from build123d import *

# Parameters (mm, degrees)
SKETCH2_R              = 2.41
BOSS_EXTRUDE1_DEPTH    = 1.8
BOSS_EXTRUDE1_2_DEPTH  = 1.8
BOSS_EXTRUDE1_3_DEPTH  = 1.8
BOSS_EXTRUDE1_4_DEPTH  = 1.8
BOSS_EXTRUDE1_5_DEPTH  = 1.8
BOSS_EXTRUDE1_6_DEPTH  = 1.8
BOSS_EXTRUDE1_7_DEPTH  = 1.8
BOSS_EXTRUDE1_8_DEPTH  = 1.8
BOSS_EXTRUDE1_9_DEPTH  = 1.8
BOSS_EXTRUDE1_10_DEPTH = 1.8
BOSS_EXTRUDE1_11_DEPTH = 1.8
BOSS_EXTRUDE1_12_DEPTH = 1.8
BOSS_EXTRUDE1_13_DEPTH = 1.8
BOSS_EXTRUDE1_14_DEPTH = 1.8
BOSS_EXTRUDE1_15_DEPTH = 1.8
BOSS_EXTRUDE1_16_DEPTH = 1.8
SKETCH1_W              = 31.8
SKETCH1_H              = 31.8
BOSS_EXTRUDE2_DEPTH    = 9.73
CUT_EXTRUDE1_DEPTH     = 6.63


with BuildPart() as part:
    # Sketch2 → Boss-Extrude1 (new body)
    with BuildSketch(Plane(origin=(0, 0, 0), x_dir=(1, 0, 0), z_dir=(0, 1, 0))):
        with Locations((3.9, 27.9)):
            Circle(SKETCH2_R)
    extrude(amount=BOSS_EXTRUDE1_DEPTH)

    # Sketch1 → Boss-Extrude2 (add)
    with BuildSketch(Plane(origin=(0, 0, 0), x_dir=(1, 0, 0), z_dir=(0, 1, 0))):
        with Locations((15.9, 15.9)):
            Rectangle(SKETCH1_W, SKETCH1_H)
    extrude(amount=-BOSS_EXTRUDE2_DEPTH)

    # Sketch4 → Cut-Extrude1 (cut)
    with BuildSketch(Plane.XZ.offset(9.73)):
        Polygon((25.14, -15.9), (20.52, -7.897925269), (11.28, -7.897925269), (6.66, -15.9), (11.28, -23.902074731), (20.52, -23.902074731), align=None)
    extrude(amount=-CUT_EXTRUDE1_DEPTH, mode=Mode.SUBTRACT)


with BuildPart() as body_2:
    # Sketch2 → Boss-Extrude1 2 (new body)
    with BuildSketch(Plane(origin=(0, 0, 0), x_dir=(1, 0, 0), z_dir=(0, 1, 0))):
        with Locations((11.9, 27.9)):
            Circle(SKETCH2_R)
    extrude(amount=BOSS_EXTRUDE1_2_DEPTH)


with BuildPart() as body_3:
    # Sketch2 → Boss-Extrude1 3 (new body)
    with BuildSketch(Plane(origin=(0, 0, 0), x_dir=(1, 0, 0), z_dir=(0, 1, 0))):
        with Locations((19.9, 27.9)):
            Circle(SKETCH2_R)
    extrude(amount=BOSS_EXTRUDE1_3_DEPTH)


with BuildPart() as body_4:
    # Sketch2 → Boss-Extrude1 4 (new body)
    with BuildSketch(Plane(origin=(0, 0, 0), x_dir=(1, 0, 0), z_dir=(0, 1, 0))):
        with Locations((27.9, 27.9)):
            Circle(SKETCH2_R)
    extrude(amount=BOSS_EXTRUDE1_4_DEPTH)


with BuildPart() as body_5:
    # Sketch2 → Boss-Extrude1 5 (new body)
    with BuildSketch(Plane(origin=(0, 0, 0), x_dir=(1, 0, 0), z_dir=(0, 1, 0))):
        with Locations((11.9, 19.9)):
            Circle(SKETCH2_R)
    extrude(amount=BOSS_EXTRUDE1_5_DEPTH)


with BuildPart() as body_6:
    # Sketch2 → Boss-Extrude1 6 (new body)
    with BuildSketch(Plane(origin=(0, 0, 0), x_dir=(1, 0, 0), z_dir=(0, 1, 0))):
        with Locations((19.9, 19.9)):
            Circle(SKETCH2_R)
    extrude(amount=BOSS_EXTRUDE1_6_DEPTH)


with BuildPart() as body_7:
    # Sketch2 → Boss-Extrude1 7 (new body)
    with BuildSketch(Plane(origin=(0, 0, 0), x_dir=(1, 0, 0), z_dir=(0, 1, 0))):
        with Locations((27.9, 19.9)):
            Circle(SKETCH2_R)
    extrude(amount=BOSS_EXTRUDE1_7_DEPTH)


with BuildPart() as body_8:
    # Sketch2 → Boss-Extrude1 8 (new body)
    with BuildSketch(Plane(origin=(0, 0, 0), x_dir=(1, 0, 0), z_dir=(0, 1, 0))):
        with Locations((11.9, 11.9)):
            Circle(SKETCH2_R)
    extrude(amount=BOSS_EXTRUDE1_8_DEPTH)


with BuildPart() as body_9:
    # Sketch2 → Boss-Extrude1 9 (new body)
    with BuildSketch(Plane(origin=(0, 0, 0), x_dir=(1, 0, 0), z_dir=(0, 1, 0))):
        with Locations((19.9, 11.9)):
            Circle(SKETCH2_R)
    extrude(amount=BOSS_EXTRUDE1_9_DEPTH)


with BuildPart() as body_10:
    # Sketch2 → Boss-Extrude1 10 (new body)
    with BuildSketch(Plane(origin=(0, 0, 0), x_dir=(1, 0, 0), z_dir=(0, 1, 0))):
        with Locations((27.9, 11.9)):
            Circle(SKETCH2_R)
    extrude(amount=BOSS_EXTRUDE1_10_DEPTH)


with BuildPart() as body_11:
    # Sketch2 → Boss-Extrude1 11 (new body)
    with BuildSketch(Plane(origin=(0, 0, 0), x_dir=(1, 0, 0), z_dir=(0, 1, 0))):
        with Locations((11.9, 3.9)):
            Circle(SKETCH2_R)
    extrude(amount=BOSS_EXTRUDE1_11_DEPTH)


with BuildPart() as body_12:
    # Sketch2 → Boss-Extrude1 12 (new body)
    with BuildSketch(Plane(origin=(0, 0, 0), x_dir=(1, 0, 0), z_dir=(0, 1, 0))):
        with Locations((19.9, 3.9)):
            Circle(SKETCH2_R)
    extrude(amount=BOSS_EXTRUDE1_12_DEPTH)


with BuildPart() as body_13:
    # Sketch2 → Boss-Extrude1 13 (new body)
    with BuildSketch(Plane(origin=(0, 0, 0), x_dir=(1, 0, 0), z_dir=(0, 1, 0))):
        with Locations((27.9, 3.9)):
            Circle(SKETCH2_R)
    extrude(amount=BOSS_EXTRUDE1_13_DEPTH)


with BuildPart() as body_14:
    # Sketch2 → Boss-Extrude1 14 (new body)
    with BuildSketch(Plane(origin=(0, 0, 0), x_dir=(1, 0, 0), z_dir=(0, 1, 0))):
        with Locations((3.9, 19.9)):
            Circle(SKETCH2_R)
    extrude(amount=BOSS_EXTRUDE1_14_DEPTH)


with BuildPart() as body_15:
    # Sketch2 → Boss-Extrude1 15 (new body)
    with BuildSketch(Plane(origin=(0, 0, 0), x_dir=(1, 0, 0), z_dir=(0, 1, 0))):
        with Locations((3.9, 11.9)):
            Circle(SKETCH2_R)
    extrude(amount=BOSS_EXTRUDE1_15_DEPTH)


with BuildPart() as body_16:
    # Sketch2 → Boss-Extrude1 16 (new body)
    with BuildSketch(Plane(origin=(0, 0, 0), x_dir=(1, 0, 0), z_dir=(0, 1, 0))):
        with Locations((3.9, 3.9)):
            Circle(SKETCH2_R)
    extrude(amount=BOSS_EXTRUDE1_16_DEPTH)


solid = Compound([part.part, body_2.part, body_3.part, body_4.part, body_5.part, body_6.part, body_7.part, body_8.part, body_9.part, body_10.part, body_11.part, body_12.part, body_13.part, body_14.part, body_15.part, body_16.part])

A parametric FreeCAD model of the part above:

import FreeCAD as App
import Part
import Sketcher
Q = App.Units.Quantity


def add_polygon(sketch, points):
    """Adds a closed chain of lines whose ends are joined by coincident constraints."""
    first, n = sketch.GeometryCount, len(points)
    for a, b in zip(points, points[1:] + points[:1]):
        sketch.addGeometry(Part.LineSegment(App.Vector(*a, 0), App.Vector(*b, 0)), False)
    for i in range(n):
        sketch.addConstraint(Sketcher.Constraint("Coincident", first + i, 2, first + (i + 1) % n, 1))

doc = App.newDocument("Part")
body = doc.addObject("PartDesign::Body", "Body")

# Sketch on XZ plane
sketch1 = body.newObject("Sketcher::SketchObject", "Sketch")
sketch1.AttachmentSupport = (doc.getObject("XZ_Plane"), [""])
sketch1.MapMode = "FlatFace"
sketch1.addGeometry(Part.Circle(App.Vector(3.9, -27.9, 0), App.Vector(0, 0, 1), 2.4), False)
sketch1.addConstraint([
    Sketcher.Constraint("Diameter", 0, 4.82),
    Sketcher.Constraint("DistanceX", -1, 1, 0, 3, 3.9),
    Sketcher.Constraint("DistanceY", 0, 3, -1, 1, 27.9),
])
pad1 = body.newObject("PartDesign::Pad", "Pad")
pad1.Profile = sketch1
pad1.Length = 1.8
pad1.Reversed = True

# Sketch on XZ plane
sketch2 = body.newObject("Sketcher::SketchObject", "Sketch001")
sketch2.AttachmentSupport = (doc.getObject("XZ_Plane"), [""])
sketch2.MapMode = "FlatFace"
add_polygon(sketch2, [(0, -32), (0, 0), (32, 0), (32, -32)])  # lines 0-3
sketch2.addConstraint([
    Sketcher.Constraint("Vertical", 0),
    Sketcher.Constraint("Horizontal", 1),
    Sketcher.Constraint("Vertical", 2),
    Sketcher.Constraint("Horizontal", 3),
    Sketcher.Constraint("Coincident", 0, 2, -1, 1),
    Sketcher.Constraint("Equal", 3, 0),
    Sketcher.Constraint("DistanceX", 1, 1, 1, 2, 31.8),
])
pad2 = body.newObject("PartDesign::Pad", "Pad001")
pad2.Profile = sketch2
pad2.Length = 9.73

# Sketch on XZ plane
sketch3 = body.newObject("Sketcher::SketchObject", "Sketch002")
sketch3.AttachmentSupport = (doc.getObject("XZ_Plane"), [""])
sketch3.MapMode = "FlatFace"
sketch3.AttachmentOffset = App.Placement(App.Vector(0, 0, 9.73), App.Rotation())
add_polygon(sketch3, [(25, -16), (21, -8), (11, -8), (7, -16), (11, -24), (21, -24)])  # lines 0-5
sketch3.addConstraint([
    Sketcher.Constraint("Horizontal", 1),
    Sketcher.Constraint("Horizontal", 4),
    Sketcher.Constraint("Parallel", 0, 3),
    Sketcher.Constraint("Parallel", 2, 5),
    Sketcher.Constraint("Horizontal", 2, 2, 5, 2),
    Sketcher.Constraint("Vertical", 1, 2, 3, 2),
    Sketcher.Constraint("Vertical", 0, 2, 4, 2),
    Sketcher.Constraint("Angle", 0, Q("120 deg")),
    Sketcher.Constraint("DistanceX", 1, 2, 1, 1, 9.24),
    Sketcher.Constraint("DistanceY", 2, 2, -1, 1, 15.9),
    Sketcher.Constraint("Distance", 0, 9.24),
    Sketcher.Constraint("DistanceX", -1, 1, 0, 2, 20.52),
])
pocket1 = body.newObject("PartDesign::Pocket", "Pocket")
pocket1.Profile = sketch3
pocket1.Length = 6.63
body2 = doc.addObject("PartDesign::Body", "Body001")

# Sketch on XZ plane
sketch4 = body2.newObject("Sketcher::SketchObject", "Sketch003")
sketch4.AttachmentSupport = (doc.getObject("XZ_Plane001"), [""])
sketch4.MapMode = "FlatFace"
sketch4.addGeometry(Part.Circle(App.Vector(11.9, -27.9, 0), App.Vector(0, 0, 1), 2.4), False)
sketch4.addConstraint([
    Sketcher.Constraint("Diameter", 0, 4.82),
    Sketcher.Constraint("DistanceX", -1, 1, 0, 3, 11.9),
    Sketcher.Constraint("DistanceY", 0, 3, -1, 1, 27.9),
])
pad3 = body2.newObject("PartDesign::Pad", "Pad002")
pad3.Profile = sketch4
pad3.Length = 1.8
pad3.Reversed = True
body3 = doc.addObject("PartDesign::Body", "Body002")

# Sketch on XZ plane
sketch5 = body3.newObject("Sketcher::SketchObject", "Sketch004")
sketch5.AttachmentSupport = (doc.getObject("XZ_Plane002"), [""])
sketch5.MapMode = "FlatFace"
sketch5.addGeometry(Part.Circle(App.Vector(19.9, -27.9, 0), App.Vector(0, 0, 1), 2.4), False)
sketch5.addConstraint([
    Sketcher.Constraint("Diameter", 0, 4.82),
    Sketcher.Constraint("DistanceX", -1, 1, 0, 3, 19.9),
    Sketcher.Constraint("DistanceY", 0, 3, -1, 1, 27.9),
])
pad4 = body3.newObject("PartDesign::Pad", "Pad003")
pad4.Profile = sketch5
pad4.Length = 1.8
pad4.Reversed = True
body4 = doc.addObject("PartDesign::Body", "Body003")

# Sketch on XZ plane
sketch6 = body4.newObject("Sketcher::SketchObject", "Sketch005")
sketch6.AttachmentSupport = (doc.getObject("XZ_Plane003"), [""])
sketch6.MapMode = "FlatFace"
sketch6.addGeometry(Part.Circle(App.Vector(27.9, -27.9, 0), App.Vector(0, 0, 1), 2.4), False)
sketch6.addConstraint([
    Sketcher.Constraint("Diameter", 0, 4.82),
    Sketcher.Constraint("DistanceX", -1, 1, 0, 3, 27.9),
    Sketcher.Constraint("DistanceY", 0, 3, -1, 1, 27.9),
])
pad5 = body4.newObject("PartDesign::Pad", "Pad004")
pad5.Profile = sketch6
pad5.Length = 1.8
pad5.Reversed = True
body5 = doc.addObject("PartDesign::Body", "Body004")

# Sketch on XZ plane
sketch7 = body5.newObject("Sketcher::SketchObject", "Sketch006")
sketch7.AttachmentSupport = (doc.getObject("XZ_Plane004"), [""])
sketch7.MapMode = "FlatFace"
sketch7.addGeometry(Part.Circle(App.Vector(11.9, -19.9, 0), App.Vector(0, 0, 1), 2.4), False)
sketch7.addConstraint([
    Sketcher.Constraint("Diameter", 0, 4.82),
    Sketcher.Constraint("DistanceX", -1, 1, 0, 3, 11.9),
    Sketcher.Constraint("DistanceY", 0, 3, -1, 1, 19.9),
])
pad6 = body5.newObject("PartDesign::Pad", "Pad005")
pad6.Profile = sketch7
pad6.Length = 1.8
pad6.Reversed = True
body6 = doc.addObject("PartDesign::Body", "Body005")

# Sketch on XZ plane
sketch8 = body6.newObject("Sketcher::SketchObject", "Sketch007")
sketch8.AttachmentSupport = (doc.getObject("XZ_Plane005"), [""])
sketch8.MapMode = "FlatFace"
sketch8.addGeometry(Part.Circle(App.Vector(19.9, -19.9, 0), App.Vector(0, 0, 1), 2.4), False)
sketch8.addConstraint([
    Sketcher.Constraint("Diameter", 0, 4.82),
    Sketcher.Constraint("DistanceX", -1, 1, 0, 3, 19.9),
    Sketcher.Constraint("DistanceY", 0, 3, -1, 1, 19.9),
])
pad7 = body6.newObject("PartDesign::Pad", "Pad006")
pad7.Profile = sketch8
pad7.Length = 1.8
pad7.Reversed = True
body7 = doc.addObject("PartDesign::Body", "Body006")

# Sketch on XZ plane
sketch9 = body7.newObject("Sketcher::SketchObject", "Sketch008")
sketch9.AttachmentSupport = (doc.getObject("XZ_Plane006"), [""])
sketch9.MapMode = "FlatFace"
sketch9.addGeometry(Part.Circle(App.Vector(27.9, -19.9, 0), App.Vector(0, 0, 1), 2.4), False)
sketch9.addConstraint([
    Sketcher.Constraint("Diameter", 0, 4.82),
    Sketcher.Constraint("DistanceX", -1, 1, 0, 3, 27.9),
    Sketcher.Constraint("DistanceY", 0, 3, -1, 1, 19.9),
])
pad8 = body7.newObject("PartDesign::Pad", "Pad007")
pad8.Profile = sketch9
pad8.Length = 1.8
pad8.Reversed = True
body8 = doc.addObject("PartDesign::Body", "Body007")

# Sketch on XZ plane
sketch10 = body8.newObject("Sketcher::SketchObject", "Sketch009")
sketch10.AttachmentSupport = (doc.getObject("XZ_Plane007"), [""])
sketch10.MapMode = "FlatFace"
sketch10.addGeometry(Part.Circle(App.Vector(11.9, -11.9, 0), App.Vector(0, 0, 1), 2.4), False)
sketch10.addConstraint([
    Sketcher.Constraint("Diameter", 0, 4.82),
    Sketcher.Constraint("DistanceX", -1, 1, 0, 3, 11.9),
    Sketcher.Constraint("DistanceY", 0, 3, -1, 1, 11.9),
])
pad9 = body8.newObject("PartDesign::Pad", "Pad008")
pad9.Profile = sketch10
pad9.Length = 1.8
pad9.Reversed = True
body9 = doc.addObject("PartDesign::Body", "Body008")

# Sketch on XZ plane
sketch11 = body9.newObject("Sketcher::SketchObject", "Sketch010")
sketch11.AttachmentSupport = (doc.getObject("XZ_Plane008"), [""])
sketch11.MapMode = "FlatFace"
sketch11.addGeometry(Part.Circle(App.Vector(19.9, -11.9, 0), App.Vector(0, 0, 1), 2.4), False)
sketch11.addConstraint([
    Sketcher.Constraint("Diameter", 0, 4.82),
    Sketcher.Constraint("DistanceX", -1, 1, 0, 3, 19.9),
    Sketcher.Constraint("DistanceY", 0, 3, -1, 1, 11.9),
])
pad10 = body9.newObject("PartDesign::Pad", "Pad009")
pad10.Profile = sketch11
pad10.Length = 1.8
pad10.Reversed = True
body10 = doc.addObject("PartDesign::Body", "Body009")

# Sketch on XZ plane
sketch12 = body10.newObject("Sketcher::SketchObject", "Sketch011")
sketch12.AttachmentSupport = (doc.getObject("XZ_Plane009"), [""])
sketch12.MapMode = "FlatFace"
sketch12.addGeometry(Part.Circle(App.Vector(27.9, -11.9, 0), App.Vector(0, 0, 1), 2.4), False)
sketch12.addConstraint([
    Sketcher.Constraint("Diameter", 0, 4.82),
    Sketcher.Constraint("DistanceX", -1, 1, 0, 3, 27.9),
    Sketcher.Constraint("DistanceY", 0, 3, -1, 1, 11.9),
])
pad11 = body10.newObject("PartDesign::Pad", "Pad010")
pad11.Profile = sketch12
pad11.Length = 1.8
pad11.Reversed = True
body11 = doc.addObject("PartDesign::Body", "Body010")

# Sketch on XZ plane
sketch13 = body11.newObject("Sketcher::SketchObject", "Sketch012")
sketch13.AttachmentSupport = (doc.getObject("XZ_Plane010"), [""])
sketch13.MapMode = "FlatFace"
sketch13.addGeometry(Part.Circle(App.Vector(11.9, -3.9, 0), App.Vector(0, 0, 1), 2.4), False)
sketch13.addConstraint([
    Sketcher.Constraint("Diameter", 0, 4.82),
    Sketcher.Constraint("DistanceX", -1, 1, 0, 3, 11.9),
    Sketcher.Constraint("DistanceY", 0, 3, -1, 1, 3.9),
])
pad12 = body11.newObject("PartDesign::Pad", "Pad011")
pad12.Profile = sketch13
pad12.Length = 1.8
pad12.Reversed = True
body12 = doc.addObject("PartDesign::Body", "Body011")

# Sketch on XZ plane
sketch14 = body12.newObject("Sketcher::SketchObject", "Sketch013")
sketch14.AttachmentSupport = (doc.getObject("XZ_Plane011"), [""])
sketch14.MapMode = "FlatFace"
sketch14.addGeometry(Part.Circle(App.Vector(19.9, -3.9, 0), App.Vector(0, 0, 1), 2.4), False)
sketch14.addConstraint([
    Sketcher.Constraint("Diameter", 0, 4.82),
    Sketcher.Constraint("DistanceX", -1, 1, 0, 3, 19.9),
    Sketcher.Constraint("DistanceY", 0, 3, -1, 1, 3.9),
])
pad13 = body12.newObject("PartDesign::Pad", "Pad012")
pad13.Profile = sketch14
pad13.Length = 1.8
pad13.Reversed = True
body13 = doc.addObject("PartDesign::Body", "Body012")

# Sketch on XZ plane
sketch15 = body13.newObject("Sketcher::SketchObject", "Sketch014")
sketch15.AttachmentSupport = (doc.getObject("XZ_Plane012"), [""])
sketch15.MapMode = "FlatFace"
sketch15.addGeometry(Part.Circle(App.Vector(27.9, -3.9, 0), App.Vector(0, 0, 1), 2.4), False)
sketch15.addConstraint([
    Sketcher.Constraint("Diameter", 0, 4.82),
    Sketcher.Constraint("DistanceX", -1, 1, 0, 3, 27.9),
    Sketcher.Constraint("DistanceY", 0, 3, -1, 1, 3.9),
])
pad14 = body13.newObject("PartDesign::Pad", "Pad013")
pad14.Profile = sketch15
pad14.Length = 1.8
pad14.Reversed = True
body14 = doc.addObject("PartDesign::Body", "Body013")

# Sketch on XZ plane
sketch16 = body14.newObject("Sketcher::SketchObject", "Sketch015")
sketch16.AttachmentSupport = (doc.getObject("XZ_Plane013"), [""])
sketch16.MapMode = "FlatFace"
sketch16.addGeometry(Part.Circle(App.Vector(3.9, -19.9, 0), App.Vector(0, 0, 1), 2.4), False)
sketch16.addConstraint([
    Sketcher.Constraint("Diameter", 0, 4.82),
    Sketcher.Constraint("DistanceX", -1, 1, 0, 3, 3.9),
    Sketcher.Constraint("DistanceY", 0, 3, -1, 1, 19.9),
])
pad15 = body14.newObject("PartDesign::Pad", "Pad014")
pad15.Profile = sketch16
pad15.Length = 1.8
pad15.Reversed = True
body15 = doc.addObject("PartDesign::Body", "Body014")

# Sketch on XZ plane
sketch17 = body15.newObject("Sketcher::SketchObject", "Sketch016")
sketch17.AttachmentSupport = (doc.getObject("XZ_Plane014"), [""])
sketch17.MapMode = "FlatFace"
sketch17.addGeometry(Part.Circle(App.Vector(3.9, -11.9, 0), App.Vector(0, 0, 1), 2.4), False)
sketch17.addConstraint([
    Sketcher.Constraint("Diameter", 0, 4.82),
    Sketcher.Constraint("DistanceX", -1, 1, 0, 3, 3.9),
    Sketcher.Constraint("DistanceY", 0, 3, -1, 1, 11.9),
])
pad16 = body15.newObject("PartDesign::Pad", "Pad015")
pad16.Profile = sketch17
pad16.Length = 1.8
pad16.Reversed = True
body16 = doc.addObject("PartDesign::Body", "Body015")

# Sketch on XZ plane
sketch18 = body16.newObject("Sketcher::SketchObject", "Sketch017")
sketch18.AttachmentSupport = (doc.getObject("XZ_Plane015"), [""])
sketch18.MapMode = "FlatFace"
sketch18.addGeometry(Part.Circle(App.Vector(3.9, -3.9, 0), App.Vector(0, 0, 1), 2.4), False)
sketch18.addConstraint([
    Sketcher.Constraint("Diameter", 0, 4.82),
    Sketcher.Constraint("DistanceX", -1, 1, 0, 3, 3.9),
    Sketcher.Constraint("DistanceY", 0, 3, -1, 1, 3.9),
])
pad17 = body16.newObject("PartDesign::Pad", "Pad016")
pad17.Profile = sketch18
pad17.Length = 1.8
pad17.Reversed = True

doc.recompute()
